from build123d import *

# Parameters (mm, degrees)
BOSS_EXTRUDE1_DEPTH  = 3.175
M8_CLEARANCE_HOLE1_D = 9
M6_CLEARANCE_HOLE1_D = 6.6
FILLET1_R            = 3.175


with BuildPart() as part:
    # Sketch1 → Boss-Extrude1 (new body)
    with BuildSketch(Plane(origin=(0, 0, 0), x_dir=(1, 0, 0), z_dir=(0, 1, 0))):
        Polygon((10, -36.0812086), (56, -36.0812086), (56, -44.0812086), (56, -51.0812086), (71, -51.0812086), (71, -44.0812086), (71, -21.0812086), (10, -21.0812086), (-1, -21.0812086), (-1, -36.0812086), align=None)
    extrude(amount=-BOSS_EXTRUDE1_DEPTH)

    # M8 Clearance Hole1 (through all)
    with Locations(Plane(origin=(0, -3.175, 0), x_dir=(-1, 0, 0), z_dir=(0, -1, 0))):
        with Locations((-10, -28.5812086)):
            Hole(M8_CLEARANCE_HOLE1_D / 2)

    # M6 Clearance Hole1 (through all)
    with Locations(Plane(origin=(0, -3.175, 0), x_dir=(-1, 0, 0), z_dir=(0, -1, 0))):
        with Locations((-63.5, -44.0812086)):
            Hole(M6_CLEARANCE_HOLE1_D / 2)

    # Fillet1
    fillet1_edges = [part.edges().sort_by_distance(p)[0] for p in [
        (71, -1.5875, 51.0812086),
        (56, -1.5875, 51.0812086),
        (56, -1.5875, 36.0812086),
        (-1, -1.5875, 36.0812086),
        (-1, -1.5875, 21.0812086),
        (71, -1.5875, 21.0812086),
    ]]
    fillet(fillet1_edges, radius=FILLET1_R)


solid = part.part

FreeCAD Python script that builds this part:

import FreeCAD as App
import Part
import Sketcher
Q = App.Units.Quantity


def edges_at(feature, points):
    """Names of the edges that pass closest to the given points."""
    edges = feature.Shape.Edges
    near = lambda p: min(range(len(edges)), key=lambda i: edges[i].distToShape(Part.Vertex(*p))[0])
    return sorted({f"Edge{near(p) + 1}" for p in points})

doc = App.newDocument("Part")
params = doc.addObject("Spreadsheet::Sheet", "Params")
for row, (alias, value) in enumerate([
    ("sketch1_width", "15 mm"),
    ("sketch1_width2", "72 mm"),
    ("pad1_length", "3.175 mm"),
    ("sketch2_diameter", "9 mm"),
    ("hole_diameter", "9 mm"),
    ("sketch3_diameter", "6.6 mm"),
    ("hole2_diameter", "6.6 mm"),
    ("fillet_radius", "3.175 mm"),
], start=1):
    params.set(f"A{row}", alias)
    params.set(f"B{row}", "=" + value)
    params.setAlias(f"B{row}", alias)

body = doc.addObject("PartDesign::Body", "Body")

sketch1 = body.newObject("Sketcher::SketchObject", "Sketch")
sketch1.AttachmentSupport = (doc.getObject("XZ_Plane"), [""])
sketch1.MapMode = "FlatFace"
sketch1.addGeometry(Part.LineSegment(App.Vector(56, 36, 0), App.Vector(56, 51, 0)), False)
sketch1.addGeometry(Part.LineSegment(App.Vector(56, 51, 0), App.Vector(71, 51, 0)), False)
sketch1.addGeometry(Part.LineSegment(App.Vector(71, 51, 0), App.Vector(71, 21, 0)), False)
sketch1.addGeometry(Part.LineSegment(App.Vector(71, 21, 0), App.Vector(-1, 21, 0)), False)
sketch1.addGeometry(Part.LineSegment(App.Vector(-1, 21, 0), App.Vector(-1, 36, 0)), False)
sketch1.addGeometry(Part.LineSegment(App.Vector(-1, 36, 0), App.Vector(56, 36, 0)), False)
sketch1.addConstraint(Sketcher.Constraint("Coincident", 0, 2, 1, 1))
sketch1.addConstraint(Sketcher.Constraint("Coincident", 1, 2, 2, 1))
sketch1.addConstraint(Sketcher.Constraint("Coincident", 2, 2, 3, 1))
sketch1.addConstraint(Sketcher.Constraint("Coincident", 3, 2, 4, 1))
sketch1.addConstraint(Sketcher.Constraint("Coincident", 4, 2, 5, 1))
sketch1.addConstraint(Sketcher.Constraint("Coincident", 5, 2, 0, 1))
sketch1.addConstraint(Sketcher.Constraint("Vertical", 0))
sketch1.addConstraint(Sketcher.Constraint("Horizontal", 1))
sketch1.addConstraint(Sketcher.Constraint("Vertical", 2))
sketch1.addConstraint(Sketcher.Constraint("Horizontal", 3))
sketch1.addConstraint(Sketcher.Constraint("Vertical", 4))
sketch1.addConstraint(Sketcher.Constraint("Horizontal", 5))
sketch1.addConstraint(Sketcher.Constraint("Equal", 1, 0))
sketch1.addConstraint(Sketcher.Constraint("Equal", 0, 4))
sketch1.addConstraint(Sketcher.Constraint("DistanceX", 1, 1, 1, 2, Q("15 mm")))
sketch1.addConstraint(Sketcher.Constraint("DistanceX", 3, 2, 3, 1, Q("72 mm")))
sketch1.addConstraint(Sketcher.Constraint("DistanceX", -1, 1, 0, 2, Q("56 mm")))
sketch1.addConstraint(Sketcher.Constraint("DistanceY", -1, 1, 0, 2, Q("51.081209 mm")))
sketch1.setExpression("Constraints[14]", "Params.sketch1_width")
sketch1.setExpression("Constraints[15]", "Params.sketch1_width2")
pad1 = body.newObject("PartDesign::Pad", "Pad")
pad1.Profile = sketch1
pad1.setExpression("Length", "Params.pad1_length")

sketch2 = body.newObject("Sketcher::SketchObject", "Sketch001")
sketch2.AttachmentSupport = (doc.getObject("XZ_Plane"), [""])
sketch2.MapMode = "FlatFace"
sketch2.AttachmentOffset = App.Placement(App.Vector(0, 0, 3.175), App.Rotation())
sketch2.addGeometry(Part.Circle(App.Vector(10, 28.6, 0), App.Vector(0, 0, 1), 4.5), False)
sketch2.addConstraint(Sketcher.Constraint("Diameter", 0, Q("9 mm")))
sketch2.addConstraint(Sketcher.Constraint("DistanceX", -1, 1, 0, 3, Q("10 mm")))
sketch2.addConstraint(Sketcher.Constraint("DistanceY", -1, 1, 0, 3, Q("28.581209 mm")))
sketch2.setExpression("Constraints[0]", "Params.sketch2_diameter")
doc.recompute()
hole = body.newObject("PartDesign::Hole", "Hole")
hole.Profile = sketch2
hole.ThreadType = "None"
hole.setExpression("Diameter", "Params.hole_diameter")
hole.DepthType = "ThroughAll"

sketch3 = body.newObject("Sketcher::SketchObject", "Sketch002")
sketch3.AttachmentSupport = (doc.getObject("XZ_Plane"), [""])
sketch3.MapMode = "FlatFace"
sketch3.AttachmentOffset = App.Placement(App.Vector(0, 0, 3.175), App.Rotation())
sketch3.addGeometry(Part.Circle(App.Vector(63.5, 44.1, 0), App.Vector(0, 0, 1), 3.3), False)
sketch3.addConstraint(Sketcher.Constraint("Diameter", 0, Q("6.6 mm")))
sketch3.addConstraint(Sketcher.Constraint("DistanceX", -1, 1, 0, 3, Q("63.5 mm")))
sketch3.addConstraint(Sketcher.Constraint("DistanceY", -1, 1, 0, 3, Q("44.081209 mm")))
sketch3.setExpression("Constraints[0]", "Params.sketch3_diameter")
doc.recompute()
hole2 = body.newObject("PartDesign::Hole", "Hole001")
hole2.Profile = sketch3
hole2.ThreadType = "None"
hole2.setExpression("Diameter", "Params.hole2_diameter")
hole2.DepthType = "ThroughAll"
doc.recompute()

fillet = body.newObject("PartDesign::Fillet", "Fillet")
fillet.Base = (hole2, edges_at(hole2, [
    (71, -1.587, 51.081),
    (56, -1.587, 51.081),
    (56, -1.587, 36.081),
    (-1, -1.587, 36.081),
    (-1, -1.587, 21.081),
    (71, -1.587, 21.081),
]))
fillet.setExpression("Radius", "Params.fillet_radius")

doc.recompute()
